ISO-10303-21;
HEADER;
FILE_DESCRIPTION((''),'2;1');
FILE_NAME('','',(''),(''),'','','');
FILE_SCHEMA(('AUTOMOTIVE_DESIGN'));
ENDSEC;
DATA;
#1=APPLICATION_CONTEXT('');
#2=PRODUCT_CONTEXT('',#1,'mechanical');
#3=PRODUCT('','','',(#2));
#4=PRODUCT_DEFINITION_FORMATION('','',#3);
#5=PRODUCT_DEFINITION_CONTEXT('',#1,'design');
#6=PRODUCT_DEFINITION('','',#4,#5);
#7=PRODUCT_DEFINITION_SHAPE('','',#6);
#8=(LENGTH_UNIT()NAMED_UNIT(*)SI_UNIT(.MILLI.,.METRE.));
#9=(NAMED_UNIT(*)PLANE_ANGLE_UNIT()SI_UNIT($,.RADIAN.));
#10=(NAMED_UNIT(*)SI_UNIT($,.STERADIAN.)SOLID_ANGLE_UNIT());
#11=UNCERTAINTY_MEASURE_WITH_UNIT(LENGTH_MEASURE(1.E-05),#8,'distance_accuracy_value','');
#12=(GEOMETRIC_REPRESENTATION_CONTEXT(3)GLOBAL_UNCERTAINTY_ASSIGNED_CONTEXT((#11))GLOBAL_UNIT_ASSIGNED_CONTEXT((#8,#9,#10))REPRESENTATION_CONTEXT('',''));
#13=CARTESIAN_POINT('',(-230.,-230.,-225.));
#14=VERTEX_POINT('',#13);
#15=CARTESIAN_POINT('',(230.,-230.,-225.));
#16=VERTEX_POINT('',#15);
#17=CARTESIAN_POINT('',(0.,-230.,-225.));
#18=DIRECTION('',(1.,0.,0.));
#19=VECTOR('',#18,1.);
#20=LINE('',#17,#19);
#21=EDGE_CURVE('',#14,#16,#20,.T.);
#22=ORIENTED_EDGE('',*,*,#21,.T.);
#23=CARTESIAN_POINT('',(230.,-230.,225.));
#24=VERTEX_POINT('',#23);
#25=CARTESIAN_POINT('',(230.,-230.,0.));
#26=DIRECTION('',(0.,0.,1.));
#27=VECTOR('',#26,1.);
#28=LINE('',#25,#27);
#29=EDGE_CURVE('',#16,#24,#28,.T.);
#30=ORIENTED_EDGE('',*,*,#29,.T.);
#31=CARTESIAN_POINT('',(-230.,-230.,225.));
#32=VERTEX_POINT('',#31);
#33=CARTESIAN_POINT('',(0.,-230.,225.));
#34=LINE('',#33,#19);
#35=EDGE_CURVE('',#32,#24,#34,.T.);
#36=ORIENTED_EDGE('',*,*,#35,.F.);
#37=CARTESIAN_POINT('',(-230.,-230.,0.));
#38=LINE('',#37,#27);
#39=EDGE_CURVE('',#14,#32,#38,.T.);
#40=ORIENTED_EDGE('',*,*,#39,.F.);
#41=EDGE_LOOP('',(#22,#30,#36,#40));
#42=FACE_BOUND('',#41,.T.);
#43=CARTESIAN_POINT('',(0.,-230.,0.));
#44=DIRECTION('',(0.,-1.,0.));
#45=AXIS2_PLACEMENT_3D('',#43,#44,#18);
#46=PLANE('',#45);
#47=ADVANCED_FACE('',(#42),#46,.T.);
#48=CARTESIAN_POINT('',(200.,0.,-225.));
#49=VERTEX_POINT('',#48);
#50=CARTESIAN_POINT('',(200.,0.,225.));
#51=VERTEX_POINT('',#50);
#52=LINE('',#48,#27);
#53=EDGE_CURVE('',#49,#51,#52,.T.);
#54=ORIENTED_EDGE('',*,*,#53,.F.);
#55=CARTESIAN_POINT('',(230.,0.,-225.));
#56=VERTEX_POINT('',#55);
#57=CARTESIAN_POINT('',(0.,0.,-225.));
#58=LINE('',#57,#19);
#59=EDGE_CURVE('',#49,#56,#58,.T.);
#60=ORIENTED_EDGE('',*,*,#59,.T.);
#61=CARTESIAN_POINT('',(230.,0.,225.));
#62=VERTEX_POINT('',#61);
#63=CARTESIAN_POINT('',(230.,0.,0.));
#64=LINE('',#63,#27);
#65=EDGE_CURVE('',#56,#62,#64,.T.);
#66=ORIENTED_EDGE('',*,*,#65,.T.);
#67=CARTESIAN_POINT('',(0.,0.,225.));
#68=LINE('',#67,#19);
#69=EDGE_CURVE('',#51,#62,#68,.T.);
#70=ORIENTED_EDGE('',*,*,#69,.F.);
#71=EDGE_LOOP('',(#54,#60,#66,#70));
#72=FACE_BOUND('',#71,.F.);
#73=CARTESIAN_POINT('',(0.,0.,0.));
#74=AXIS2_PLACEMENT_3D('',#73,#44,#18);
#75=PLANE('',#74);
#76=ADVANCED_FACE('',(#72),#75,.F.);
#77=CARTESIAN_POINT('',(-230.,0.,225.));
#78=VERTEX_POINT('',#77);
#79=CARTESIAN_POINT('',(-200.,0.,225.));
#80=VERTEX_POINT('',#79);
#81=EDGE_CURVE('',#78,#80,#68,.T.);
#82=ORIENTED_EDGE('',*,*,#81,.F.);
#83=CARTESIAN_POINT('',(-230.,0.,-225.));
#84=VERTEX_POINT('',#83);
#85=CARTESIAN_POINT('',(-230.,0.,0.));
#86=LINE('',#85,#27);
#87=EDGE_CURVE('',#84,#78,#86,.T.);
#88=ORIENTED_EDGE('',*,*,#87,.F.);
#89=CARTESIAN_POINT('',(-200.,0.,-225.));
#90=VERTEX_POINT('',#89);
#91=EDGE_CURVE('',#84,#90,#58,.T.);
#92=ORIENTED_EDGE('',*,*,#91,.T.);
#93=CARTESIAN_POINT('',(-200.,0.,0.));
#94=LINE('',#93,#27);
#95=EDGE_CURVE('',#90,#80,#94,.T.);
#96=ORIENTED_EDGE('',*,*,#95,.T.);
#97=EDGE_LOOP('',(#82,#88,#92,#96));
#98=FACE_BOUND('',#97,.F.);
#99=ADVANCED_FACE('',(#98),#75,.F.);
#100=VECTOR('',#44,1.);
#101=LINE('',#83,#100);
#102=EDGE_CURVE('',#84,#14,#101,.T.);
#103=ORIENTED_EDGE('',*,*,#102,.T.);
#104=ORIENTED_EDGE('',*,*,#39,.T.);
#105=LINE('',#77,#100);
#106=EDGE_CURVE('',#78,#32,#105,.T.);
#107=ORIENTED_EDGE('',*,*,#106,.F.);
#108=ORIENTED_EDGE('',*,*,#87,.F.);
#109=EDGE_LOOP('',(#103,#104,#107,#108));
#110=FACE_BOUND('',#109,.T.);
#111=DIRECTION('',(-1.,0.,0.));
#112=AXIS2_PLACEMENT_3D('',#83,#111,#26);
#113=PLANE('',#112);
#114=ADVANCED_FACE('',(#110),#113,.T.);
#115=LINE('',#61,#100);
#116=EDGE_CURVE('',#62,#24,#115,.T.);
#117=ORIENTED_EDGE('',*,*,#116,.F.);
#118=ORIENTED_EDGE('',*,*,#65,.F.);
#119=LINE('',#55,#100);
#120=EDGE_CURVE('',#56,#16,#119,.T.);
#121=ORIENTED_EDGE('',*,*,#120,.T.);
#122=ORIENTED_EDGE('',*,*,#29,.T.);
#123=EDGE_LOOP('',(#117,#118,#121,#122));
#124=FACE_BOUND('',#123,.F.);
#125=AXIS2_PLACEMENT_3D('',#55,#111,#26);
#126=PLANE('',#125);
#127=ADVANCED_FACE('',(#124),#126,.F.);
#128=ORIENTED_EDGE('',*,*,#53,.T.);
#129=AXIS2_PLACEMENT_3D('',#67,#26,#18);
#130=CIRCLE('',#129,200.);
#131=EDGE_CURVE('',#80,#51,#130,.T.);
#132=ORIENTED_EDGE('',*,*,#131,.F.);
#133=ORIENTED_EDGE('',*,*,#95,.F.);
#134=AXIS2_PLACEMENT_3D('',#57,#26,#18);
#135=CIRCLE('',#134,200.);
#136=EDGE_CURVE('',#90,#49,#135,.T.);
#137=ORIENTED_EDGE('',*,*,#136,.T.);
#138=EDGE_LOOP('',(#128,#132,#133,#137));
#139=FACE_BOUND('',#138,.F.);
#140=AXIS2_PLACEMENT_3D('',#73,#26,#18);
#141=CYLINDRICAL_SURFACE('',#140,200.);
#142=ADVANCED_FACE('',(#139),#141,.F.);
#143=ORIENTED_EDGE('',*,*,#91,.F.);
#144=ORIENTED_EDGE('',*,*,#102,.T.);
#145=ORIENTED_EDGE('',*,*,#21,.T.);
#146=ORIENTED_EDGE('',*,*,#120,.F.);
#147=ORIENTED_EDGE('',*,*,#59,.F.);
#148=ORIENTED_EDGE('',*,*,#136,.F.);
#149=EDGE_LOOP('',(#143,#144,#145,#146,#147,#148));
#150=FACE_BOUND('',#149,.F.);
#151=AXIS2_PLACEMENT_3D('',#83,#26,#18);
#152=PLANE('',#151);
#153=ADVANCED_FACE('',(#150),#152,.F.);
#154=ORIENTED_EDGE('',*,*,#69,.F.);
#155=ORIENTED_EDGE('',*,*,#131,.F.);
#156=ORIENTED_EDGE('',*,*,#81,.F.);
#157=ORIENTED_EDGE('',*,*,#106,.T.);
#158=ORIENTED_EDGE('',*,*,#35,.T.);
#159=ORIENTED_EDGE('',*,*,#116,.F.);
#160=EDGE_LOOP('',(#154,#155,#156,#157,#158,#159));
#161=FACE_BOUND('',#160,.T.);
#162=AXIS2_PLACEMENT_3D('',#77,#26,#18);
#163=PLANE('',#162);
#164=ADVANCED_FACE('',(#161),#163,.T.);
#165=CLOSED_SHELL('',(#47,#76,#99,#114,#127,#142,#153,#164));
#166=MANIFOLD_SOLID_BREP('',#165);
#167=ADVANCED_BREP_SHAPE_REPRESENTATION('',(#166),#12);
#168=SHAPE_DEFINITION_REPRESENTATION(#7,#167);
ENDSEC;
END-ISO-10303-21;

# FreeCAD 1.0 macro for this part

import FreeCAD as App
import Part
import Sketcher
Q = App.Units.Quantity

doc = App.newDocument("Part")
params = doc.addObject("Spreadsheet::Sheet", "Params")
for row, (alias, value) in enumerate([
    ("sketch1_diameter", "400 mm"),
    ("pad1_length", "450 mm"),
    ("sketch2_width", "460 mm"),
    ("sketch2_height", "450 mm"),
    ("pad2_length", "230 mm"),
], start=1):
    params.set(f"A{row}", alias)
    params.set(f"B{row}", "=" + value)
    params.setAlias(f"B{row}", alias)

body = doc.addObject("PartDesign::Body", "Body")

# Sketch on XY plane
sketch1 = body.newObject("Sketcher::SketchObject", "Sketch")
sketch1.AttachmentSupport = (doc.getObject("XY_Plane"), [""])
sketch1.MapMode = "FlatFace"
sketch1.addGeometry(Part.Circle(App.Vector(0, 0, 0), App.Vector(0, 0, 1), 200), False)
sketch1.addConstraint([
    Sketcher.Constraint("Coincident", 0, 3, -1, 1),
    Sketcher.Constraint("Diameter", 0, Q("400 mm")),
])
sketch1.setExpression("Constraints[1]", "Params.sketch1_diameter")
pad1 = body.newObject("PartDesign::Pad", "Pad")
pad1.Profile = sketch1
pad1.setExpression("Length", "Params.pad1_length")
pad1.Midplane = True
body2 = doc.addObject("PartDesign::Body", "Body001")

# Sketch on XZ plane
sketch2 = body2.newObject("Sketcher::SketchObject", "Sketch001")
sketch2.AttachmentSupport = (doc.getObject("XZ_Plane001"), [""])
sketch2.MapMode = "FlatFace"
sketch2.addGeometry([
    Part.LineSegment(App.Vector(-230, 225, 0), App.Vector(-230, -225, 0)),
    Part.LineSegment(App.Vector(-230, -225, 0), App.Vector(230, -225, 0)),
    Part.LineSegment(App.Vector(230, -225, 0), App.Vector(230, 225, 0)),
    Part.LineSegment(App.Vector(230, 225, 0), App.Vector(-230, 225, 0)),
], False)
sketch2.addConstraint([
    Sketcher.Constraint("Coincident", 0, 2, 1, 1),
    Sketcher.Constraint("Coincident", 1, 2, 2, 1),
    Sketcher.Constraint("Coincident", 2, 2, 3, 1),
    Sketcher.Constraint("Coincident", 3, 2, 0, 1),
    Sketcher.Constraint("Vertical", 0),
    Sketcher.Constraint("Horizontal", 1),
    Sketcher.Constraint("Vertical", 2),
    Sketcher.Constraint("Horizontal", 3),
    Sketcher.Constraint("Symmetric", 0, 2, 2, 2, -1, 1),
    Sketcher.Constraint("DistanceX", 1, 1, 1, 2, Q("460 mm")),
    Sketcher.Constraint("DistanceY", 0, 2, 0, 1, Q("450 mm")),
])
sketch2.setExpression("Constraints[9]", "Params.sketch2_width")
sketch2.setExpression("Constraints[10]", "Params.sketch2_height")
pad2 = body2.newObject("PartDesign::Pad", "Pad001")
pad2.Profile = sketch2
pad2.setExpression("Length", "Params.pad2_length")
doc.recompute()

boolean = body2.newObject("PartDesign::Boolean", "Boolean")
boolean.Type = "Cut"
boolean.addObjects([body])

doc.recompute()
